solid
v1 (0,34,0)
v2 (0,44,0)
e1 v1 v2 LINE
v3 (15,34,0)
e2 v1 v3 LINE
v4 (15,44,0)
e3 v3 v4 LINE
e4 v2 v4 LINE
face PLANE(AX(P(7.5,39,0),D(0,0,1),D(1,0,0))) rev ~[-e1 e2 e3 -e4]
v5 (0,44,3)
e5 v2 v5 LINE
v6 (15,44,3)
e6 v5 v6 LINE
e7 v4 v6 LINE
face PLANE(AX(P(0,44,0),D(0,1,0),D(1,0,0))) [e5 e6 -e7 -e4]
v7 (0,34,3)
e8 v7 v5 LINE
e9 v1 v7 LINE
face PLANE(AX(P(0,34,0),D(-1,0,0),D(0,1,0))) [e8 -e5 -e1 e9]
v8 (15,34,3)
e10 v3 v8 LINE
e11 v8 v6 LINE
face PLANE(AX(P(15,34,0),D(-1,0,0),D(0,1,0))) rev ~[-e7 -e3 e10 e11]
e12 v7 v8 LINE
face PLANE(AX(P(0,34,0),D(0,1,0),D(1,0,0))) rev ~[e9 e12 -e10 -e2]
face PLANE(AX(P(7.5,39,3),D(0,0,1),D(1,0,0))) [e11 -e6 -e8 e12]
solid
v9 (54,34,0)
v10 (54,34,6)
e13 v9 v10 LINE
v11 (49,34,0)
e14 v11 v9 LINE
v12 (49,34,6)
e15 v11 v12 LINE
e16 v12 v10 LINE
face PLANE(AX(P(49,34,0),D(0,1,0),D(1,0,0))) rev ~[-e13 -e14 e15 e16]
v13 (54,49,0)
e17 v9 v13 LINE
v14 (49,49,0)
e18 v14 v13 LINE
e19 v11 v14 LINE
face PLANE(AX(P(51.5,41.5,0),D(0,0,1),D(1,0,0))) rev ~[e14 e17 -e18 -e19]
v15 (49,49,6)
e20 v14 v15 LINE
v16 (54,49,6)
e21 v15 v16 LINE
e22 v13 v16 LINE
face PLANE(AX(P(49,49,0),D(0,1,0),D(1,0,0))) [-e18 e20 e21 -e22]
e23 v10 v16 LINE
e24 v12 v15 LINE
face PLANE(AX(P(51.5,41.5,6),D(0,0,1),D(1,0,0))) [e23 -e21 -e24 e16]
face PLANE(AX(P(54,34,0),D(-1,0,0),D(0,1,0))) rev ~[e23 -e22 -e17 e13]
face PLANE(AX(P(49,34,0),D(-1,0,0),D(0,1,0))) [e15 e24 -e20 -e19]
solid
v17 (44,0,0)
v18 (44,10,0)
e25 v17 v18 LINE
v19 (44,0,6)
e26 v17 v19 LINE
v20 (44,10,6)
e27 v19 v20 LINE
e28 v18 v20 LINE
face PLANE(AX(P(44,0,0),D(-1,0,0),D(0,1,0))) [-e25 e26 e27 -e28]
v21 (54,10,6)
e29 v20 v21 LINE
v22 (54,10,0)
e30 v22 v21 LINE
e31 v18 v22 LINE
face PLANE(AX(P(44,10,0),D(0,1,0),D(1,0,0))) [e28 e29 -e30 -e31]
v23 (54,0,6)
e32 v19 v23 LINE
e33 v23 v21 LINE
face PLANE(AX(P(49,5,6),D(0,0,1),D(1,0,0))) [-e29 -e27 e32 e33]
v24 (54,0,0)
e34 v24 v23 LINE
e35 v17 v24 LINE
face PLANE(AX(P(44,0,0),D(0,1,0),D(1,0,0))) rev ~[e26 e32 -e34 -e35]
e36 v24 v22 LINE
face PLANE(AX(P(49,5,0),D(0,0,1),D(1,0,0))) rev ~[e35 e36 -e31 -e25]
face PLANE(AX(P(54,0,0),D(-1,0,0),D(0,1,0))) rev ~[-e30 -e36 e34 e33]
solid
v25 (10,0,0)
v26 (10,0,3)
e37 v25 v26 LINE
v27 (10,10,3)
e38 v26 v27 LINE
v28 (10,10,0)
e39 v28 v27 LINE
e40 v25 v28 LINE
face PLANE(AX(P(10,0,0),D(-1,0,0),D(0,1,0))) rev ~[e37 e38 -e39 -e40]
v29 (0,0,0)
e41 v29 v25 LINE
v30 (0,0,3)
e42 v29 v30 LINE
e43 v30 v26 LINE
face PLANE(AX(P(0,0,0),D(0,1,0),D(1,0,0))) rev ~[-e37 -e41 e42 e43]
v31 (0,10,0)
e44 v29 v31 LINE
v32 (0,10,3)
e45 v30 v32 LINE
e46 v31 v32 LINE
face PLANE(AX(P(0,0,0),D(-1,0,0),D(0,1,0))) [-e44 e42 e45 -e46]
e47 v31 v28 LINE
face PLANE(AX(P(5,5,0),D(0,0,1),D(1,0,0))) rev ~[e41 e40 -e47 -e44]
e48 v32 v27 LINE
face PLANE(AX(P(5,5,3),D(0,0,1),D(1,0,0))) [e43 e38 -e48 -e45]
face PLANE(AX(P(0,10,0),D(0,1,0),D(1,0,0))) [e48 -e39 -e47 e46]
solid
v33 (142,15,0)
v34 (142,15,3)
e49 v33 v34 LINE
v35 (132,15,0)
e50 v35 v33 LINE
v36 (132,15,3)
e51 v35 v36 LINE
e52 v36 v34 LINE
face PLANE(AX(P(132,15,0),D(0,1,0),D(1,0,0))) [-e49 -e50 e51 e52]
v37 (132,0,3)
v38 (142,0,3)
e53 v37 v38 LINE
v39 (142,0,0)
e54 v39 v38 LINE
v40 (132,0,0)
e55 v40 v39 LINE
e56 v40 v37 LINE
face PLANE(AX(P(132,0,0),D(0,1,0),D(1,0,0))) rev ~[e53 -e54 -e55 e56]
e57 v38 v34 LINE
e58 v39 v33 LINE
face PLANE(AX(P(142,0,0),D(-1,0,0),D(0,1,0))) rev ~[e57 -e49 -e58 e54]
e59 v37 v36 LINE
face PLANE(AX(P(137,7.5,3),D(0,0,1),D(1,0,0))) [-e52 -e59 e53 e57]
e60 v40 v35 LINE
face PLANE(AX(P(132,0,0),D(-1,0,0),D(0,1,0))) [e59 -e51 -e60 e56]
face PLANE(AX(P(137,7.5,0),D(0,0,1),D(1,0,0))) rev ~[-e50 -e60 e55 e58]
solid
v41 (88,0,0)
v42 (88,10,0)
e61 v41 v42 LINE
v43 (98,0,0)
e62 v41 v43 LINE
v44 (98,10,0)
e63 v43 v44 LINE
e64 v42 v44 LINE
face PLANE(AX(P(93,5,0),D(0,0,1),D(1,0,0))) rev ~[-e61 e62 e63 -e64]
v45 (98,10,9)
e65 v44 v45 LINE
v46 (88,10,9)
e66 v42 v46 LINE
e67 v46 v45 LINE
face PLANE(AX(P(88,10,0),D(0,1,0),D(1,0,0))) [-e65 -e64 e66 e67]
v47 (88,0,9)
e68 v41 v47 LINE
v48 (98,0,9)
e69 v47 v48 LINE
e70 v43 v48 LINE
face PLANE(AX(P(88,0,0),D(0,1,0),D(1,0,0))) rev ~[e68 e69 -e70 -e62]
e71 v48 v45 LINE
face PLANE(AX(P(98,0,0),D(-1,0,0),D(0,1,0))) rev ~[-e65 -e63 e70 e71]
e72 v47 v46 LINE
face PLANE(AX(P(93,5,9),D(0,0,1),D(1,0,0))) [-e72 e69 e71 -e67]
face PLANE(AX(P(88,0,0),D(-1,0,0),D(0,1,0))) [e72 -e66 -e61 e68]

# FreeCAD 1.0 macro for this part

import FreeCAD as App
import Part
import Sketcher

V = App.Vector
Q = App.Units.Quantity

doc = App.newDocument("Part")
body = doc.addObject("PartDesign::Body", "Body")

# Sketch on XY plane
sketch1 = body.newObject("Sketcher::SketchObject", "Sketch")
sketch1.AttachmentSupport = (doc.getObject("XY_Plane"), [""])
sketch1.MapMode = "FlatFace"
sketch1.addGeometry(Part.LineSegment(V(0, 10, 0), V(0, 0, 0)), False)
sketch1.addGeometry(Part.LineSegment(V(0, 0, 0), V(10, 0, 0)), False)
sketch1.addGeometry(Part.LineSegment(V(10, 0, 0), V(10, 10, 0)), False)
sketch1.addGeometry(Part.LineSegment(V(10, 10, 0), V(0, 10, 0)), False)
sketch1.addConstraint(Sketcher.Constraint("Coincident", 0, 2, 1, 1))
sketch1.addConstraint(Sketcher.Constraint("Coincident", 1, 2, 2, 1))
sketch1.addConstraint(Sketcher.Constraint("Coincident", 2, 2, 3, 1))
sketch1.addConstraint(Sketcher.Constraint("Coincident", 3, 2, 0, 1))
sketch1.addConstraint(Sketcher.Constraint("Vertical", 0))
sketch1.addConstraint(Sketcher.Constraint("Horizontal", 1))
sketch1.addConstraint(Sketcher.Constraint("Vertical", 2))
sketch1.addConstraint(Sketcher.Constraint("Horizontal", 3))
sketch1.addConstraint(Sketcher.Constraint("Coincident", 0, 2, -1, 1))
sketch1.addConstraint(Sketcher.Constraint("Equal", 3, 0))
sketch1.addConstraint(Sketcher.Constraint("DistanceX", 1, 1, 1, 2, Q("10 mm")))
pad1 = body.newObject("PartDesign::Pad", "Pad")
pad1.Profile = sketch1
pad1.Length = 3
body2 = doc.addObject("PartDesign::Body", "Body001")

# Sketch on XY plane
sketch2 = body2.newObject("Sketcher::SketchObject", "Sketch001")
sketch2.AttachmentSupport = (doc.getObject("XY_Plane001"), [""])
sketch2.MapMode = "FlatFace"
sketch2.addGeometry(Part.LineSegment(V(44, 10, 0), V(44, 0, 0)), False)
sketch2.addGeometry(Part.LineSegment(V(44, 0, 0), V(54, 0, 0)), False)
sketch2.addGeometry(Part.LineSegment(V(54, 0, 0), V(54, 10, 0)), False)
sketch2.addGeometry(Part.LineSegment(V(54, 10, 0), V(44, 10, 0)), False)
sketch2.addConstraint(Sketcher.Constraint("Coincident", 0, 2, 1, 1))
sketch2.addConstraint(Sketcher.Constraint("Coincident", 1, 2, 2, 1))
sketch2.addConstraint(Sketcher.Constraint("Coincident", 2, 2, 3, 1))
sketch2.addConstraint(Sketcher.Constraint("Coincident", 3, 2, 0, 1))
sketch2.addConstraint(Sketcher.Constraint("Vertical", 0))
sketch2.addConstraint(Sketcher.Constraint("Horizontal", 1))
sketch2.addConstraint(Sketcher.Constraint("Vertical", 2))
sketch2.addConstraint(Sketcher.Constraint("Horizontal", 3))
sketch2.addConstraint(Sketcher.Constraint("PointOnObject", 0, 2, -1))
sketch2.addConstraint(Sketcher.Constraint("Equal", 3, 0))
sketch2.addConstraint(Sketcher.Constraint("DistanceX", 1, 1, 1, 2, Q("10 mm")))
sketch2.addConstraint(Sketcher.Constraint("DistanceX", -1, 1, 0, 2, Q("44 mm")))
pad2 = body2.newObject("PartDesign::Pad", "Pad001")
pad2.Profile = sketch2
pad2.Length = 6
body3 = doc.addObject("PartDesign::Body", "Body002")

# Sketch on XY plane
sketch3 = body3.newObject("Sketcher::SketchObject", "Sketch002")
sketch3.AttachmentSupport = (doc.getObject("XY_Plane002"), [""])
sketch3.MapMode = "FlatFace"
sketch3.addGeometry(Part.LineSegment(V(88, 10, 0), V(88, 0, 0)), False)
sketch3.addGeometry(Part.LineSegment(V(88, 0, 0), V(98, 0, 0)), False)
sketch3.addGeometry(Part.LineSegment(V(98, 0, 0), V(98, 10, 0)), False)
sketch3.addGeometry(Part.LineSegment(V(98, 10, 0), V(88, 10, 0)), False)
sketch3.addConstraint(Sketcher.Constraint("Coincident", 0, 2, 1, 1))
sketch3.addConstraint(Sketcher.Constraint("Coincident", 1, 2, 2, 1))
sketch3.addConstraint(Sketcher.Constraint("Coincident", 2, 2, 3, 1))
sketch3.addConstraint(Sketcher.Constraint("Coincident", 3, 2, 0, 1))
sketch3.addConstraint(Sketcher.Constraint("Vertical", 0))
sketch3.addConstraint(Sketcher.Constraint("Horizontal", 1))
sketch3.addConstraint(Sketcher.Constraint("Vertical", 2))
sketch3.addConstraint(Sketcher.Constraint("Horizontal", 3))
sketch3.addConstraint(Sketcher.Constraint("PointOnObject", 0, 2, -1))
sketch3.addConstraint(Sketcher.Constraint("Equal", 3, 0))
sketch3.addConstraint(Sketcher.Constraint("DistanceX", 1, 1, 1, 2, Q("10 mm")))
sketch3.addConstraint(Sketcher.Constraint("DistanceX", -1, 1, 0, 2, Q("88 mm")))
pad3 = body3.newObject("PartDesign::Pad", "Pad002")
pad3.Profile = sketch3
pad3.Length = 9
body4 = doc.addObject("PartDesign::Body", "Body003")

# Sketch on XY plane
sketch4 = body4.newObject("Sketcher::SketchObject", "Sketch003")
sketch4.AttachmentSupport = (doc.getObject("XY_Plane003"), [""])
sketch4.MapMode = "FlatFace"
sketch4.addGeometry(Part.LineSegment(V(132, 15, 0), V(132, 0, 0)), False)
sketch4.addGeometry(Part.LineSegment(V(132, 0, 0), V(142, 0, 0)), False)
sketch4.addGeometry(Part.LineSegment(V(142, 0, 0), V(142, 15, 0)), False)
sketch4.addGeometry(Part.LineSegment(V(142, 15, 0), V(132, 15, 0)), False)
sketch4.addConstraint(Sketcher.Constraint("Coincident", 0, 2, 1, 1))
sketch4.addConstraint(Sketcher.Constraint("Coincident", 1, 2, 2, 1))
sketch4.addConstraint(Sketcher.Constraint("Coincident", 2, 2, 3, 1))
sketch4.addConstraint(Sketcher.Constraint("Coincident", 3, 2, 0, 1))
sketch4.addConstraint(Sketcher.Constraint("Vertical", 0))
sketch4.addConstraint(Sketcher.Constraint("Horizontal", 1))
sketch4.addConstraint(Sketcher.Constraint("Vertical", 2))
sketch4.addConstraint(Sketcher.Constraint("Horizontal", 3))
sketch4.addConstraint(Sketcher.Constraint("PointOnObject", 0, 2, -1))
sketch4.addConstraint(Sketcher.Constraint("DistanceX", 1, 1, 1, 2, Q("10 mm")))
sketch4.addConstraint(Sketcher.Constraint("DistanceY", 0, 2, 0, 1, Q("15 mm")))
sketch4.addConstraint(Sketcher.Constraint("DistanceX", -1, 1, 0, 2, Q("132 mm")))
pad4 = body4.newObject("PartDesign::Pad", "Pad003")
pad4.Profile = sketch4
pad4.Length = 3
body5 = doc.addObject("PartDesign::Body", "Body004")

# Sketch on XY plane
sketch5 = body5.newObject("Sketcher::SketchObject", "Sketch004")
sketch5.AttachmentSupport = (doc.getObject("XY_Plane004"), [""])
sketch5.MapMode = "FlatFace"
sketch5.addGeometry(Part.LineSegment(V(0, 44, 0), V(0, 34, 0)), False)
sketch5.addGeometry(Part.LineSegment(V(0, 34, 0), V(15, 34, 0)), False)
sketch5.addGeometry(Part.LineSegment(V(15, 34, 0), V(15, 44, 0)), False)
sketch5.addGeometry(Part.LineSegment(V(15, 44, 0), V(0, 44, 0)), False)
sketch5.addConstraint(Sketcher.Constraint("Coincident", 0, 2, 1, 1))
sketch5.addConstraint(Sketcher.Constraint("Coincident", 1, 2, 2, 1))
sketch5.addConstraint(Sketcher.Constraint("Coincident", 2, 2, 3, 1))
sketch5.addConstraint(Sketcher.Constraint("Coincident", 3, 2, 0, 1))
sketch5.addConstraint(Sketcher.Constraint("Vertical", 0))
sketch5.addConstraint(Sketcher.Constraint("Horizontal", 1))
sketch5.addConstraint(Sketcher.Constraint("Vertical", 2))
sketch5.addConstraint(Sketcher.Constraint("Horizontal", 3))
sketch5.addConstraint(Sketcher.Constraint("PointOnObject", 0, 2, -2))
sketch5.addConstraint(Sketcher.Constraint("DistanceX", 1, 1, 1, 2, Q("15 mm")))
sketch5.addConstraint(Sketcher.Constraint("DistanceY", 0, 2, 0, 1, Q("10 mm")))
sketch5.addConstraint(Sketcher.Constraint("DistanceY", -1, 1, 0, 2, Q("34 mm")))
pad5 = body5.newObject("PartDesign::Pad", "Pad004")
pad5.Profile = sketch5
pad5.Length = 3
body6 = doc.addObject("PartDesign::Body", "Body005")

# Sketch on XY plane
sketch6 = body6.newObject("Sketcher::SketchObject", "Sketch005")
sketch6.AttachmentSupport = (doc.getObject("XY_Plane005"), [""])
sketch6.MapMode = "FlatFace"
sketch6.addGeometry(Part.LineSegment(V(49, 49, 0), V(49, 34, 0)), False)
sketch6.addGeometry(Part.LineSegment(V(49, 34, 0), V(54, 34, 0)), False)
sketch6.addGeometry(Part.LineSegment(V(54, 34, 0), V(54, 49, 0)), False)
sketch6.addGeometry(Part.LineSegment(V(54, 49, 0), V(49, 49, 0)), False)
sketch6.addConstraint(Sketcher.Constraint("Coincident", 0, 2, 1, 1))
sketch6.addConstraint(Sketcher.Constraint("Coincident", 1, 2, 2, 1))
sketch6.addConstraint(Sketcher.Constraint("Coincident", 2, 2, 3, 1))
sketch6.addConstraint(Sketcher.Constraint("Coincident", 3, 2, 0, 1))
sketch6.addConstraint(Sketcher.Constraint("Vertical", 0))
sketch6.addConstraint(Sketcher.Constraint("Horizontal", 1))
sketch6.addConstraint(Sketcher.Constraint("Vertical", 2))
sketch6.addConstraint(Sketcher.Constraint("Horizontal", 3))
sketch6.addConstraint(Sketcher.Constraint("DistanceX", 1, 1, 1, 2, Q("5 mm")))
sketch6.addConstraint(Sketcher.Constraint("DistanceY", 0, 2, 0, 1, Q("15 mm")))
sketch6.addConstraint(Sketcher.Constraint("DistanceX", -1, 1, 0, 2, Q("49 mm")))
sketch6.addConstraint(Sketcher.Constraint("DistanceY", -1, 1, 0, 2, Q("34 mm")))
pad6 = body6.newObject("PartDesign::Pad", "Pad005")
pad6.Profile = sketch6
pad6.Length = 6

doc.recompute()
